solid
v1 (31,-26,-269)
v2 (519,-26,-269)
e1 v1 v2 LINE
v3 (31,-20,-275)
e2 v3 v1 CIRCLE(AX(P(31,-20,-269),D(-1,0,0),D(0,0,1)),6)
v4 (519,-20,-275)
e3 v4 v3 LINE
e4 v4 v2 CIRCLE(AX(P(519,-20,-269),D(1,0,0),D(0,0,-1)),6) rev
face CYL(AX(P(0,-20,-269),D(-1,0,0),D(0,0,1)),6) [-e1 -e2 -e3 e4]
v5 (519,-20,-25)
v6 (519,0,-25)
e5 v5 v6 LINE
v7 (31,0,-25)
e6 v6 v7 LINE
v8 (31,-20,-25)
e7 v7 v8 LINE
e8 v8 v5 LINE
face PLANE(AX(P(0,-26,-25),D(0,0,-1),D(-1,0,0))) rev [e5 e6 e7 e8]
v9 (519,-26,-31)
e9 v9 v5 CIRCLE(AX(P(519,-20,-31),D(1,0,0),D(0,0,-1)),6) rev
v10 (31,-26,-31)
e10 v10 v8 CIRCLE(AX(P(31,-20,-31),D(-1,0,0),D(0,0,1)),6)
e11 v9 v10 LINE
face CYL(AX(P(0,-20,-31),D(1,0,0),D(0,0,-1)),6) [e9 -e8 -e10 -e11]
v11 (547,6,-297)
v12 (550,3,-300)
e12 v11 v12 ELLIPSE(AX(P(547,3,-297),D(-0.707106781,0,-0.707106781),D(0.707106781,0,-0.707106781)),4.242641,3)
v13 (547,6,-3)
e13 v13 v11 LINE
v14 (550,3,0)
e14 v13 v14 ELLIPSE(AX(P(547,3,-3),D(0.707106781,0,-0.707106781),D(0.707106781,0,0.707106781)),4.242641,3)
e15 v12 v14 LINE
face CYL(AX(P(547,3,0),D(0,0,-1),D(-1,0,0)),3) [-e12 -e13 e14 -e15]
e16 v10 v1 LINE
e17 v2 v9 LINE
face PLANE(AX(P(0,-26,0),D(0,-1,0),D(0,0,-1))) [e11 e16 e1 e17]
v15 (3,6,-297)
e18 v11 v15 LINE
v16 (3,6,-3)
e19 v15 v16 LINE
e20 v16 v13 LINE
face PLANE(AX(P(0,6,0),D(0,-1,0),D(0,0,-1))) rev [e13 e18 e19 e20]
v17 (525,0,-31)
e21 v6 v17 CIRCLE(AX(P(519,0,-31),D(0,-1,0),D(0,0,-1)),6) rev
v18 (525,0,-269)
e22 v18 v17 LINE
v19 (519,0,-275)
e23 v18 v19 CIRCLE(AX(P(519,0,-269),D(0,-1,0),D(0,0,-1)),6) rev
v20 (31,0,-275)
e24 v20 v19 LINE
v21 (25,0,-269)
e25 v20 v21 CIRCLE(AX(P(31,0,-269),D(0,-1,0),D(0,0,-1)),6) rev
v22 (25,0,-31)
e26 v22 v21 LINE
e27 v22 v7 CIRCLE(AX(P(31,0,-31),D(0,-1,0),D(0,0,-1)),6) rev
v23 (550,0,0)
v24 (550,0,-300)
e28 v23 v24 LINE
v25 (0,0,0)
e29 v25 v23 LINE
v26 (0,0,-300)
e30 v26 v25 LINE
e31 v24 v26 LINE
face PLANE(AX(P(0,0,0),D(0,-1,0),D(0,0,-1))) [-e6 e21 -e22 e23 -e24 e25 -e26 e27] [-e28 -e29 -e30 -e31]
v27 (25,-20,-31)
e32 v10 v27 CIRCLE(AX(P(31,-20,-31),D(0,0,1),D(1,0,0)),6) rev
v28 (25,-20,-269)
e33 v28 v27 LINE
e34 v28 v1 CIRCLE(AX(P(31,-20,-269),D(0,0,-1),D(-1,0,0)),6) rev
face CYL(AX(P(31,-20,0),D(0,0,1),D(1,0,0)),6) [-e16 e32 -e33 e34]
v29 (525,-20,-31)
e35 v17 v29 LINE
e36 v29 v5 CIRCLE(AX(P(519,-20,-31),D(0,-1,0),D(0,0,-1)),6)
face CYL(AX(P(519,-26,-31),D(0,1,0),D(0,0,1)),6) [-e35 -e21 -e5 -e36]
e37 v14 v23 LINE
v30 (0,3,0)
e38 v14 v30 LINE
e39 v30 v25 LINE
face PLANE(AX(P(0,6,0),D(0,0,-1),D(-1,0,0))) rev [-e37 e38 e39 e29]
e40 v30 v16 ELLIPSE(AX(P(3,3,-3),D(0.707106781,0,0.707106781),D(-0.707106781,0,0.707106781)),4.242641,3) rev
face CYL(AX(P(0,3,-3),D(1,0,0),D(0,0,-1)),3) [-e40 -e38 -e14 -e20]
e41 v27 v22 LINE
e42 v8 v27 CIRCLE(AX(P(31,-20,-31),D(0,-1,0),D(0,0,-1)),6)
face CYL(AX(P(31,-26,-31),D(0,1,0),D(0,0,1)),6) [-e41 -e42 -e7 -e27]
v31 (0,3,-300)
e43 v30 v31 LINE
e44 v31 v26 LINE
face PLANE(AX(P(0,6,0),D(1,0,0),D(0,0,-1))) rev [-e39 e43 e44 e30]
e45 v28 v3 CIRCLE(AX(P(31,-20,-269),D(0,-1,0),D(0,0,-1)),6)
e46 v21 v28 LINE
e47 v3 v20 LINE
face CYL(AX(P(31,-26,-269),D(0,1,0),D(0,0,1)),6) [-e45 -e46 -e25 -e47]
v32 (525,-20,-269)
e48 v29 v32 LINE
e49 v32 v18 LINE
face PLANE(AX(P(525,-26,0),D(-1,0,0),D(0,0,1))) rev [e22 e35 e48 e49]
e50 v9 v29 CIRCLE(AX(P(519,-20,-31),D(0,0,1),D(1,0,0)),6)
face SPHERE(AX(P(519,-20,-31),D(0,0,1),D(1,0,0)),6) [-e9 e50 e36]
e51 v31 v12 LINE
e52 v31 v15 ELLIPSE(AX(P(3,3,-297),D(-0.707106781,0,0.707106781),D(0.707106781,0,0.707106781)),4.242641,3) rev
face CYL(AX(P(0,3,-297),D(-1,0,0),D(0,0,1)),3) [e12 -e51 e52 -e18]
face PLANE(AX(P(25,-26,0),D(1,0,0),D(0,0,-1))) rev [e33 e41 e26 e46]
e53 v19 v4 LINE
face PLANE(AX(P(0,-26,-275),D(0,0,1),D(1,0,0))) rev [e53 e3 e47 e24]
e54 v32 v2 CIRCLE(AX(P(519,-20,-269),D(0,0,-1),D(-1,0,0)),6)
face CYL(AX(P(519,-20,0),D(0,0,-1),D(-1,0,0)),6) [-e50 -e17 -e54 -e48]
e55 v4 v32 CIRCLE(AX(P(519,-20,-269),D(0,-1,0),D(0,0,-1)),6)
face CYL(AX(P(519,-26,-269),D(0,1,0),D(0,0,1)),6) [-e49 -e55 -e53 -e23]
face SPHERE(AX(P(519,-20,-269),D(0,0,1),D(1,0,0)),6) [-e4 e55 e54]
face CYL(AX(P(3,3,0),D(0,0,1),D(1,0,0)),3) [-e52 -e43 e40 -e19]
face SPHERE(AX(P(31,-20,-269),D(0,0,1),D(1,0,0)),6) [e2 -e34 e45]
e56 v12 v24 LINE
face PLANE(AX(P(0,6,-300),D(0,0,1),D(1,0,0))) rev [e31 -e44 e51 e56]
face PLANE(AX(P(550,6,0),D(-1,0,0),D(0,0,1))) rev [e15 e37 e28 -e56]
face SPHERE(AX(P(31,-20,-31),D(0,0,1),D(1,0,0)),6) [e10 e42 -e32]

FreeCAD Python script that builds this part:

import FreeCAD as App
import Part
import Sketcher


def edges_at(feature, points):
    """Names of the edges that pass closest to the given points."""
    edges = feature.Shape.Edges
    near = lambda p: min(range(len(edges)), key=lambda i: edges[i].distToShape(Part.Vertex(*p))[0])
    return sorted({f"Edge{near(p) + 1}" for p in points})

doc = App.newDocument("Part")
body = doc.addObject("PartDesign::Body", "Body")

# Sketch on XZ plane
sketch1 = doc.addObject("Sketcher::SketchObject", "Sketch")
body.addObject(sketch1)
sketch1.AttachmentSupport = (doc.XZ_Plane, [""])
sketch1.MapMode = "FlatFace"
sketch1.addGeometry([
    Part.LineSegment(App.Vector(0, -300, 0), App.Vector(0, 0, 0)),
    Part.LineSegment(App.Vector(0, 0, 0), App.Vector(550, 0, 0)),
    Part.LineSegment(App.Vector(550, 0, 0), App.Vector(550, -300, 0)),
    Part.LineSegment(App.Vector(550, -300, 0), App.Vector(0, -300, 0)),
], False)
sketch1.addConstraint([
    Sketcher.Constraint("Coincident", 0, 2, 1, 1),
    Sketcher.Constraint("Coincident", 1, 2, 2, 1),
    Sketcher.Constraint("Coincident", 2, 2, 3, 1),
    Sketcher.Constraint("Coincident", 3, 2, 0, 1),
    Sketcher.Constraint("Vertical", 0),
    Sketcher.Constraint("Horizontal", 1),
    Sketcher.Constraint("Vertical", 2),
    Sketcher.Constraint("Horizontal", 3),
    Sketcher.Constraint("Coincident", 0, 2, -1, 1),
    Sketcher.Constraint("DistanceX", 1, 1, 1, 2, 550.0),
    Sketcher.Constraint("DistanceY", 0, 1, 0, 2, 300.0),
])
pad1 = doc.addObject("PartDesign::Pad", "Pad")
body.addObject(pad1)
pad1.Profile = sketch1
pad1.Length = 6
pad1.Reversed = True
doc.recompute()

fillet = doc.addObject("PartDesign::Fillet", "Fillet")
body.addObject(fillet)
fillet.Base = (pad1, edges_at(pad1, [
    (550, 6, -150),
    (275, 6, -300),
    (0, 6, -150),
    (275, 6, 0),
]))
fillet.Radius = 3

# Sketch on XZ plane
sketch2 = doc.addObject("Sketcher::SketchObject", "Sketch001")
body.addObject(sketch2)
sketch2.AttachmentSupport = (doc.XZ_Plane, [""])
sketch2.MapMode = "FlatFace"
sketch2.addGeometry([
    Part.LineSegment(App.Vector(25, -25, 0), App.Vector(25, -275, 0)),
    Part.LineSegment(App.Vector(25, -275, 0), App.Vector(525, -275, 0)),
    Part.LineSegment(App.Vector(525, -275, 0), App.Vector(525, -25, 0)),
    Part.LineSegment(App.Vector(525, -25, 0), App.Vector(25, -25, 0)),
], False)
sketch2.addConstraint([
    Sketcher.Constraint("Coincident", 0, 2, 1, 1),
    Sketcher.Constraint("Coincident", 1, 2, 2, 1),
    Sketcher.Constraint("Coincident", 2, 2, 3, 1),
    Sketcher.Constraint("Coincident", 3, 2, 0, 1),
    Sketcher.Constraint("Vertical", 0),
    Sketcher.Constraint("Horizontal", 1),
    Sketcher.Constraint("Vertical", 2),
    Sketcher.Constraint("Horizontal", 3),
    Sketcher.Constraint("DistanceX", 1, 1, 1, 2, 500.0),
    Sketcher.Constraint("DistanceY", 0, 2, 0, 1, 250.0),
    Sketcher.Constraint("DistanceX", -1, 1, 0, 2, 25.0),
    Sketcher.Constraint("DistanceY", 0, 2, -1, 1, 275.0),
])
pad2 = doc.addObject("PartDesign::Pad", "Pad001")
body.addObject(pad2)
pad2.Profile = sketch2
pad2.Length = 26
doc.recompute()

fillet2 = doc.addObject("PartDesign::Fillet", "Fillet001")
body.addObject(fillet2)
fillet2.Base = (pad2, edges_at(pad2, [
    (25, -13, -275),
    (525, -13, -275),
    (525, -13, -25),
    (25, -13, -25),
    (275, -26, -275),
    (525, -26, -150),
    (275, -26, -25),
    (25, -26, -150),
]))
fillet2.Radius = 6

doc.recompute()
